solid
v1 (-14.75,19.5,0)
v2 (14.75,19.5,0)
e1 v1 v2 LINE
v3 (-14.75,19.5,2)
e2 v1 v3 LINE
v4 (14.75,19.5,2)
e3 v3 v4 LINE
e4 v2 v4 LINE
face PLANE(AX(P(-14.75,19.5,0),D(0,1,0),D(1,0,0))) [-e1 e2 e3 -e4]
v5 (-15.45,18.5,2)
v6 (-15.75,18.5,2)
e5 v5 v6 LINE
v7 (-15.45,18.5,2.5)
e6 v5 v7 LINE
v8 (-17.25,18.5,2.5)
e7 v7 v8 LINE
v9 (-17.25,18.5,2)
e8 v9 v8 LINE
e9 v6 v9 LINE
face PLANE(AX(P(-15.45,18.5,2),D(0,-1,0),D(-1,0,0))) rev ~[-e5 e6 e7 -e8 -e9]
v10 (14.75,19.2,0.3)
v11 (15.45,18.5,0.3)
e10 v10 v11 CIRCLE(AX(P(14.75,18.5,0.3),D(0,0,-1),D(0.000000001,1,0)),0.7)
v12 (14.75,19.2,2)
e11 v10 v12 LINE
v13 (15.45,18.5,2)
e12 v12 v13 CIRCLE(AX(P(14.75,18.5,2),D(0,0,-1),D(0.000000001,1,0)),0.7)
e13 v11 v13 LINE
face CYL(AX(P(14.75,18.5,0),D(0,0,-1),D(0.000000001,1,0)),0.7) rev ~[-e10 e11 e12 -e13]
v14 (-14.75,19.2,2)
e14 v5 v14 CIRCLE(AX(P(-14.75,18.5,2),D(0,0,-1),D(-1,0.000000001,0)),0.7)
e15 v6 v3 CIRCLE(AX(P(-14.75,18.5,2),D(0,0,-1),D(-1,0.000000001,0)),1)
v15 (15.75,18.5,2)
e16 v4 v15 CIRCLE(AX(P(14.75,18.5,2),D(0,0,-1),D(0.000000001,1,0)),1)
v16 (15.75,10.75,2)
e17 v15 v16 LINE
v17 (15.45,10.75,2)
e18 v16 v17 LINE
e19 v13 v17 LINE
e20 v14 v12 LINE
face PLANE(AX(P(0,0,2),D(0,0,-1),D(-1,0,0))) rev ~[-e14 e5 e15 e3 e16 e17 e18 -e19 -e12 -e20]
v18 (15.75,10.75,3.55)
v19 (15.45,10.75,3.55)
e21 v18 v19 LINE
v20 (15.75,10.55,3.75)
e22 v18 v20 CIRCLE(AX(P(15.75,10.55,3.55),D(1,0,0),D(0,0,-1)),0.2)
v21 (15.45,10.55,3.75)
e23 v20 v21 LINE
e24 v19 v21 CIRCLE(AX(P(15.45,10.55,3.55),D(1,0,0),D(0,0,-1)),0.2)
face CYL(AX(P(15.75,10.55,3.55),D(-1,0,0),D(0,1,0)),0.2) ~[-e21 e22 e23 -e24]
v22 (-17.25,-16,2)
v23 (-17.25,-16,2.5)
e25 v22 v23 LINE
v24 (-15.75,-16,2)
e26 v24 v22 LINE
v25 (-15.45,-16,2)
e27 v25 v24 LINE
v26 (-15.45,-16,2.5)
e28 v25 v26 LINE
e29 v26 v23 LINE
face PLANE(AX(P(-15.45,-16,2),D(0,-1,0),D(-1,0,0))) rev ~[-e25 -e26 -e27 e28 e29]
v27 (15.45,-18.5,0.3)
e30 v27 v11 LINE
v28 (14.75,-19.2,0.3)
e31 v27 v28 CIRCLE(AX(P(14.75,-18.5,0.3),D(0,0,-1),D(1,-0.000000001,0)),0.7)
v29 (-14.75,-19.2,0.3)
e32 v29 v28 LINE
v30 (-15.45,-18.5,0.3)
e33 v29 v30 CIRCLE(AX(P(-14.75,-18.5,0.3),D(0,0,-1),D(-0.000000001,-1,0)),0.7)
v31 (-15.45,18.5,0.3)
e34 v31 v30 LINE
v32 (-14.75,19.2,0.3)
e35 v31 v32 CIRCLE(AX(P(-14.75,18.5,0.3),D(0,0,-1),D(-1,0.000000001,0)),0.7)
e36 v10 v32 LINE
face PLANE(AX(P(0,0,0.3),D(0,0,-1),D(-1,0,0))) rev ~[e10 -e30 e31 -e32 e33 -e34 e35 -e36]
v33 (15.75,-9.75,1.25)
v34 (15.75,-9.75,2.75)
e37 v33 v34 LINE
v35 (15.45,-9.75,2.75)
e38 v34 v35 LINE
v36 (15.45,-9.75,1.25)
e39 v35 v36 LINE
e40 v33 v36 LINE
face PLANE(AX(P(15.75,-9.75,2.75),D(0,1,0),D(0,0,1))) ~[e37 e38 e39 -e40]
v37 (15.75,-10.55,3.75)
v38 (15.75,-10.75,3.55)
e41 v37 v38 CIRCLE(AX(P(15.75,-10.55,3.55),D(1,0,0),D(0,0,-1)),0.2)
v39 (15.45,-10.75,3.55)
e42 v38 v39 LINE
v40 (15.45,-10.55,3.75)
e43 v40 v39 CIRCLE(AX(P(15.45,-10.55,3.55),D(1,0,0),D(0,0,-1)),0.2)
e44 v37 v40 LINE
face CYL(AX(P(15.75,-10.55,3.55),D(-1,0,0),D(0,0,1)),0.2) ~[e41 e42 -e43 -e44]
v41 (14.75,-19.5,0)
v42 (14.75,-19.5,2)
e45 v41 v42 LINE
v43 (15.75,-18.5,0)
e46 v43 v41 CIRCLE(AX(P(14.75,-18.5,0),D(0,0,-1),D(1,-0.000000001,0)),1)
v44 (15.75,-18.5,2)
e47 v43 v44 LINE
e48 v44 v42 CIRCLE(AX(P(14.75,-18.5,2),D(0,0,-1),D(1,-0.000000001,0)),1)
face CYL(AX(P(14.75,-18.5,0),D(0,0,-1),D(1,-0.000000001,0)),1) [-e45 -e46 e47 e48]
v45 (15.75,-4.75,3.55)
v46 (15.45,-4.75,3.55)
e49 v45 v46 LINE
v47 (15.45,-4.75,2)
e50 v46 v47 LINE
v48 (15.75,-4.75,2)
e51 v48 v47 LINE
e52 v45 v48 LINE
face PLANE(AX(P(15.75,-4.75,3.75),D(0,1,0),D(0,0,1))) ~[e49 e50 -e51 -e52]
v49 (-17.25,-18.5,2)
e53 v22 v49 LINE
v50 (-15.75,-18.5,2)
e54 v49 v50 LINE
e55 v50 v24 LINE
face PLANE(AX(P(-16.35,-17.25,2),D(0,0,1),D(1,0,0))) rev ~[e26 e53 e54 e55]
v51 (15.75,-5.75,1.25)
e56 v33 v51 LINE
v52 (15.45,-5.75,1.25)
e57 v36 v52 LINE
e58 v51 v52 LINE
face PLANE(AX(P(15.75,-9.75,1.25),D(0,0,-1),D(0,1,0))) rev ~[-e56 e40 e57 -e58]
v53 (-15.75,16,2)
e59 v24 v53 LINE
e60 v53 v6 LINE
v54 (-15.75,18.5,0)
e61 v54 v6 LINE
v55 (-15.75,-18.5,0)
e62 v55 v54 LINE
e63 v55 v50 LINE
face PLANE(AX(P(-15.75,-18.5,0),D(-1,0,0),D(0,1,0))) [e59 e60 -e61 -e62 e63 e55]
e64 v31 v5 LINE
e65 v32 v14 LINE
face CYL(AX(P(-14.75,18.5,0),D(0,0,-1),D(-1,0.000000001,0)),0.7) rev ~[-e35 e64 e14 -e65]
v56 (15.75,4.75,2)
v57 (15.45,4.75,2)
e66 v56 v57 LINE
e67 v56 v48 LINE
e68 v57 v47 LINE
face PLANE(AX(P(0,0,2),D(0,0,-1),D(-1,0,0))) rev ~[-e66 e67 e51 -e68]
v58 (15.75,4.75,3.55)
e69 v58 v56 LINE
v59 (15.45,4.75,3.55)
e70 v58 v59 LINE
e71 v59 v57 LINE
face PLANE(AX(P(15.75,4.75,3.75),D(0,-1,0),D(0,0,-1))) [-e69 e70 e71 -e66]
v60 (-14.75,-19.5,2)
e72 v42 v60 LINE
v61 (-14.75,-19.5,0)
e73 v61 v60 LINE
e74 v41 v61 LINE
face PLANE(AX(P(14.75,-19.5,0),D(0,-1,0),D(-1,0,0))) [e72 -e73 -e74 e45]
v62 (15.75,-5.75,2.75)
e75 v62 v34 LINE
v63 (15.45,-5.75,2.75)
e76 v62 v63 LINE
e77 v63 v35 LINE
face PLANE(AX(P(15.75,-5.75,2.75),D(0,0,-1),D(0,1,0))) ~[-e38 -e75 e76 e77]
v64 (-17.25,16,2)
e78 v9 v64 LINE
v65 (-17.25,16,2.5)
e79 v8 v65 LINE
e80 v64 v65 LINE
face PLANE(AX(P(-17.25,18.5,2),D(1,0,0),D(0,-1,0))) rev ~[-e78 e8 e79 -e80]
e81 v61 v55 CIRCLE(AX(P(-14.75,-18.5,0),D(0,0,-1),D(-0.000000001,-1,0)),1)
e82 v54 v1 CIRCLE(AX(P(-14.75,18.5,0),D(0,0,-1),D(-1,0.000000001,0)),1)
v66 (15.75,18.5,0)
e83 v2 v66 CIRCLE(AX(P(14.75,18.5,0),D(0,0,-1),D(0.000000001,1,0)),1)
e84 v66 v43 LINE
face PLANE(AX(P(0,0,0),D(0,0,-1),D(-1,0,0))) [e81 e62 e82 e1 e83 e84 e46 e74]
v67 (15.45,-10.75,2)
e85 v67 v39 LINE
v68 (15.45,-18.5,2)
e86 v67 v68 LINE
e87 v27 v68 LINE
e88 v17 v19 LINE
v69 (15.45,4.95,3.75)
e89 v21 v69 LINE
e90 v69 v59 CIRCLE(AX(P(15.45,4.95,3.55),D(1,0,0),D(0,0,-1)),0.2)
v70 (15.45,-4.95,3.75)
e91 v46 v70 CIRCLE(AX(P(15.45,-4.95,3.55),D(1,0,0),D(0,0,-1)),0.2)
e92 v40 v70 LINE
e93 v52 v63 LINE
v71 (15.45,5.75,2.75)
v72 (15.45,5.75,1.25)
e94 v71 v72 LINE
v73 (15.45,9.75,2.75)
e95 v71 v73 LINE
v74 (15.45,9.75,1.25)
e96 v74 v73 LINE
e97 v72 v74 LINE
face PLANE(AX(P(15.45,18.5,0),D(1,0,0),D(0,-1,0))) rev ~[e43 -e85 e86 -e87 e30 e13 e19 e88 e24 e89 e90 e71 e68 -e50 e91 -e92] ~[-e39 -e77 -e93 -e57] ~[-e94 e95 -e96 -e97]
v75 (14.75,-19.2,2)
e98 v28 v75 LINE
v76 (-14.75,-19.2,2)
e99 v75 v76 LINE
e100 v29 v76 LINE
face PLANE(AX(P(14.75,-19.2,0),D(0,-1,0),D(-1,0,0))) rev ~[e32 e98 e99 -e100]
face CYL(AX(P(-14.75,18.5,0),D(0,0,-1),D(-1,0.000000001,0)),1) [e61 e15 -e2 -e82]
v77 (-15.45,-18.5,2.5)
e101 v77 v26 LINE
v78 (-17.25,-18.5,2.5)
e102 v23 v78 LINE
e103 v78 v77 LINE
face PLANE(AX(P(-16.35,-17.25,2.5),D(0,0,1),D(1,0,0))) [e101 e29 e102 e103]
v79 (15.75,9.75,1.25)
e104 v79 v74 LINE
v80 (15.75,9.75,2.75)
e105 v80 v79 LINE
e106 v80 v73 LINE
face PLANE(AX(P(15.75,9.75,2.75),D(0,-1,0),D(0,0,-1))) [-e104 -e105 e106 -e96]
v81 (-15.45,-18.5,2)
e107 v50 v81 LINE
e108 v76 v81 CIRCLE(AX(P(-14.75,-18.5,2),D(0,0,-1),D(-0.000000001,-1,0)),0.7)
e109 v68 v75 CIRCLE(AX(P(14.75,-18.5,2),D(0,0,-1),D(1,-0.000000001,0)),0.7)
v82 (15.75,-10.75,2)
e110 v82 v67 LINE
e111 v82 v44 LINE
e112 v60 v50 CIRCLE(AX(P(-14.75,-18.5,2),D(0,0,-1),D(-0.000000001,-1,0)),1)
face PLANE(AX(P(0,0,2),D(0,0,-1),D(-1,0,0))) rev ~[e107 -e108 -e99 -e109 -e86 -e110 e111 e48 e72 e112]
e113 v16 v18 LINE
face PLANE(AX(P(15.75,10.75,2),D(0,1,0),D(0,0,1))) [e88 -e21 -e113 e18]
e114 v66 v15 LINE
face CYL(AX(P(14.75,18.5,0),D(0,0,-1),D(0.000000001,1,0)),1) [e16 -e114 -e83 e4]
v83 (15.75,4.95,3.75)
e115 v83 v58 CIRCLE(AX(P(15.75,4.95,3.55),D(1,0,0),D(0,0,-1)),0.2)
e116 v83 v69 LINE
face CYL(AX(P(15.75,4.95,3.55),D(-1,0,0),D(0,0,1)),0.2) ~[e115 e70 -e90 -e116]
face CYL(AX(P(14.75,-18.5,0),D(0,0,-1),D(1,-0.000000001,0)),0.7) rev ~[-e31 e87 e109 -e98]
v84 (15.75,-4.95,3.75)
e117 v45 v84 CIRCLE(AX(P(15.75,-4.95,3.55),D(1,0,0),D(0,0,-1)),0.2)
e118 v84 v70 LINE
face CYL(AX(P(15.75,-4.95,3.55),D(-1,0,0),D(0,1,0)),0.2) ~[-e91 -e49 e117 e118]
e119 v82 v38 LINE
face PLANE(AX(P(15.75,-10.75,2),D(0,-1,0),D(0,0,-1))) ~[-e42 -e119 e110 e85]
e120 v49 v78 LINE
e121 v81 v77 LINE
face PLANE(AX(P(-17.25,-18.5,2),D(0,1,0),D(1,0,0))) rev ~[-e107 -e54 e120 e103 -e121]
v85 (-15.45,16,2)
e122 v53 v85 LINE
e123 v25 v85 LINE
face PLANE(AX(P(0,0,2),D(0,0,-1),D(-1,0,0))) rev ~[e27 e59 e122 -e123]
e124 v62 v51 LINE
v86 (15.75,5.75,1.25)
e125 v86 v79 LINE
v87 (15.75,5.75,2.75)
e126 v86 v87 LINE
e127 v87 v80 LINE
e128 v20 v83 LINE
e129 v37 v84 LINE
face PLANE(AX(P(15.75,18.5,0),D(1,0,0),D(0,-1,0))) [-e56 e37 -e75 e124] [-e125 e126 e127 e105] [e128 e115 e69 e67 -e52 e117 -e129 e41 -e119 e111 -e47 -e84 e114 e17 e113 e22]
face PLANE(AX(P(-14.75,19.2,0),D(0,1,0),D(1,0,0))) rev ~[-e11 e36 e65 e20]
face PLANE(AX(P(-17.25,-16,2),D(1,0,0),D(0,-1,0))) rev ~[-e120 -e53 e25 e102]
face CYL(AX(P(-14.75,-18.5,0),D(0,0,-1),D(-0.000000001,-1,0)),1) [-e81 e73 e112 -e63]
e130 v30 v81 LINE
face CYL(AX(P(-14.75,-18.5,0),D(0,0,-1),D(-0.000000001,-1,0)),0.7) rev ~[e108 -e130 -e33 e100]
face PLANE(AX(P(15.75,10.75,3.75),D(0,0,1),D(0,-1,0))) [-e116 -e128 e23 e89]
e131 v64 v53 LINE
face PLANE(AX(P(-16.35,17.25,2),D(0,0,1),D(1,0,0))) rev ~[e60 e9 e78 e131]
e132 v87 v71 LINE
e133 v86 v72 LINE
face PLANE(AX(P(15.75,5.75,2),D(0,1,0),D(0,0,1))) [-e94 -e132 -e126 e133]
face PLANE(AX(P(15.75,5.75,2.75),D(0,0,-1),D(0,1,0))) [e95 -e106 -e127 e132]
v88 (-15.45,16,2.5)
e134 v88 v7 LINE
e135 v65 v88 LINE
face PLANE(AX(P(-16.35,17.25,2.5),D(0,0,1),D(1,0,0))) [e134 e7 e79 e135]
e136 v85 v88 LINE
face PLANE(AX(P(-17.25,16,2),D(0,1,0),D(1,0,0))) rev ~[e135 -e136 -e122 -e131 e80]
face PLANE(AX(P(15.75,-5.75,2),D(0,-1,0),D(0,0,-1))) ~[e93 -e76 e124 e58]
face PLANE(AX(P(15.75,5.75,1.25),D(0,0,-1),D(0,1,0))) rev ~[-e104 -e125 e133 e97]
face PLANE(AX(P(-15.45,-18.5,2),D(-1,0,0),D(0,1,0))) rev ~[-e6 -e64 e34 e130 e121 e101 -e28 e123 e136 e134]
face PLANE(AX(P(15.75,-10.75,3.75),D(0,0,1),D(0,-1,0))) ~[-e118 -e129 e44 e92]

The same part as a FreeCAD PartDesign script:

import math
import FreeCAD as App
import Part
import Sketcher


def edges_at(feature, points):
    """Names of the edges that pass closest to the given points."""
    edges = feature.Shape.Edges
    near = lambda p: min(range(len(edges)), key=lambda i: edges[i].distToShape(Part.Vertex(*p))[0])
    return sorted({f"Edge{near(p) + 1}" for p in points})


def faces_at(feature, points):
    """Names of the faces that lie closest to the given points."""
    faces = feature.Shape.Faces
    near = lambda p: min(range(len(faces)), key=lambda i: faces[i].distToShape(Part.Vertex(*p))[0])
    return sorted({f"Face{near(p) + 1}" for p in points})

doc = App.newDocument("Part")
params = doc.addObject("Spreadsheet::Sheet", "Params")
for row, (alias, value) in enumerate([
    ("sketch1_radius", "1 mm"),
    ("sketch1_height", "37 mm"),
    ("sketch1_width", "29.5 mm"),
    ("pad1_length", "2 mm"),
    ("thickness_wall", "0.3 mm"),
    ("sketch2_width", "6 mm"),
    ("sketch2_width2", "1 mm"),
    ("sketch2_height", "1.75 mm"),
    ("pad2_length", "0.3 mm"),
    ("sketch3_width", "4 mm"),
    ("sketch3_height", "0.75 mm"),
    ("pocket1_length", "0.3 mm"),
    ("fillet_radius", "0.2 mm"),
    ("sketch4_width", "1.8 mm"),
    ("sketch4_height", "2.5 mm"),
    ("pad3_length", "0.5 mm"),
], start=1):
    params.set(f"A{row}", alias)
    params.set(f"B{row}", "=" + value)
    params.setAlias(f"B{row}", alias)

body = doc.addObject("PartDesign::Body", "Body")

sketch1 = body.newObject("Sketcher::SketchObject", "Sketch")
sketch1.AttachmentSupport = (doc.getObject("XY_Plane"), [""])
sketch1.MapMode = "FlatFace"
sketch1.addGeometry([
    Part.LineSegment(App.Vector(14.8, 19.5, 0), App.Vector(-14.8, 19.5, 0)),
    Part.ArcOfCircle(Part.Circle(App.Vector(-14.7, 18.5, 0), App.Vector(0, 0, 1), 1), math.radians(90), math.radians(180)),
    Part.LineSegment(App.Vector(-15.8, 18.5, 0), App.Vector(-15.8, -18.5, 0)),
    Part.ArcOfCircle(Part.Circle(App.Vector(-14.7, -18.5, 0), App.Vector(0, 0, 1), 1), math.radians(-180), math.radians(-90)),
    Part.LineSegment(App.Vector(-14.8, -19.5, 0), App.Vector(14.8, -19.5, 0)),
    Part.ArcOfCircle(Part.Circle(App.Vector(14.7, -18.5, 0), App.Vector(0, 0, 1), 1), math.radians(-90), math.radians(0)),
    Part.LineSegment(App.Vector(15.8, -18.5, 0), App.Vector(15.8, 18.5, 0)),
    Part.ArcOfCircle(Part.Circle(App.Vector(14.7, 18.5, 0), App.Vector(0, 0, 1), 1), math.radians(0), math.radians(90)),
], False)
sketch1.addConstraint([
    Sketcher.Constraint("Tangent", 0, 2, 1, 1),
    Sketcher.Constraint("Tangent", 1, 2, 2, 1),
    Sketcher.Constraint("Tangent", 2, 2, 3, 1),
    Sketcher.Constraint("Tangent", 3, 2, 4, 1),
    Sketcher.Constraint("Tangent", 4, 2, 5, 1),
    Sketcher.Constraint("Tangent", 5, 2, 6, 1),
    Sketcher.Constraint("Tangent", 6, 2, 7, 1),
    Sketcher.Constraint("Tangent", 7, 2, 0, 1),
    Sketcher.Constraint("Horizontal", 0),
    Sketcher.Constraint("Vertical", 2),
    Sketcher.Constraint("Horizontal", 4),
    Sketcher.Constraint("Vertical", 6),
    Sketcher.Constraint("Equal", 1, 3),
    Sketcher.Constraint("Equal", 3, 5),
    Sketcher.Constraint("Equal", 5, 7),
    Sketcher.Constraint("Symmetric", 1, 3, 5, 3, -1, 1),
    Sketcher.Constraint("Radius", 1, 1.0),
    Sketcher.Constraint("DistanceY", 2, 2, 2, 1, 37.0),
    Sketcher.Constraint("DistanceX", 0, 2, 0, 1, 29.5),
])
sketch1.setExpression("Constraints[16]", "Params.sketch1_radius")
sketch1.setExpression("Constraints[17]", "Params.sketch1_height")
sketch1.setExpression("Constraints[18]", "Params.sketch1_width")
pad1 = body.newObject("PartDesign::Pad", "Pad")
pad1.Profile = sketch1
pad1.setExpression("Length", "Params.pad1_length")
doc.recompute()

thickness = body.newObject("PartDesign::Thickness", "Thickness")
thickness.Base = (pad1, faces_at(pad1, [(0, 0, 2)]))
thickness.setExpression("Value", "Params.thickness_wall")
thickness.Reversed = True
thickness.Join = "Intersection"

sketch2 = body.newObject("Sketcher::SketchObject", "Sketch001")
sketch2.AttachmentSupport = (doc.getObject("YZ_Plane"), [""])
sketch2.MapMode = "FlatFace"
sketch2.AttachmentOffset = App.Placement(App.Vector(0, 0, 15.75), App.Rotation())
sketch2.addGeometry([
    Part.LineSegment(App.Vector(10.8, 2, 0), App.Vector(10.8, 3.8, 0)),
    Part.LineSegment(App.Vector(10.8, 3.8, 0), App.Vector(4.8, 3.8, 0)),
    Part.LineSegment(App.Vector(4.8, 3.8, 0), App.Vector(4.8, 2, 0)),
    Part.LineSegment(App.Vector(4.8, 2, 0), App.Vector(5.8, 2, 0)),
    Part.LineSegment(App.Vector(5.8, 2, 0), App.Vector(5.8, 2.8, 0)),
    Part.LineSegment(App.Vector(5.8, 2.8, 0), App.Vector(9.8, 2.8, 0)),
    Part.LineSegment(App.Vector(9.8, 2.8, 0), App.Vector(9.8, 2, 0)),
    Part.LineSegment(App.Vector(9.8, 2, 0), App.Vector(10.8, 2, 0)),
], False)
sketch2.addConstraint([
    Sketcher.Constraint("Coincident", 0, 2, 1, 1),
    Sketcher.Constraint("Coincident", 1, 2, 2, 1),
    Sketcher.Constraint("Coincident", 2, 2, 3, 1),
    Sketcher.Constraint("Coincident", 3, 2, 4, 1),
    Sketcher.Constraint("Coincident", 4, 2, 5, 1),
    Sketcher.Constraint("Coincident", 5, 2, 6, 1),
    Sketcher.Constraint("Coincident", 6, 2, 7, 1),
    Sketcher.Constraint("Coincident", 7, 2, 0, 1),
    Sketcher.Constraint("Vertical", 0),
    Sketcher.Constraint("Horizontal", 1),
    Sketcher.Constraint("Vertical", 2),
    Sketcher.Constraint("Horizontal", 3),
    Sketcher.Constraint("Vertical", 4),
    Sketcher.Constraint("Horizontal", 5),
    Sketcher.Constraint("Vertical", 6),
    Sketcher.Constraint("Horizontal", 7),
    Sketcher.Constraint("Horizontal", 3, 2, 6, 2),
    Sketcher.Constraint("Equal", 3, 7),
    Sketcher.Constraint("DistanceX", 1, 2, 1, 1, 6.0),
    Sketcher.Constraint("DistanceX", 3, 1, 3, 2, 1.0),
    Sketcher.Constraint("DistanceY", -1, 1, 2, 2, 2.0),
    Sketcher.Constraint("DistanceY", 4, 2, 1, 2, 1.0),
    Sketcher.Constraint("DistanceY", 0, 1, 0, 2, 1.75),
    Sketcher.Constraint("DistanceX", -1, 1, 0, 2, 10.75),
])
sketch2.setExpression("Constraints[18]", "Params.sketch2_width")
sketch2.setExpression("Constraints[19]", "Params.sketch2_width2")
sketch2.setExpression("Constraints[22]", "Params.sketch2_height")
pad2 = body.newObject("PartDesign::Pad", "Pad001")
pad2.Profile = sketch2
pad2.setExpression("Length", "Params.pad2_length")
pad2.Reversed = True
doc.recompute()

mirrored = body.newObject("PartDesign::Mirrored", "Mirrored")
mirrored.Originals = [pad2]
mirrored.MirrorPlane = (doc.getObject("XZ_Plane"), [""])
body.Tip = mirrored

sketch3 = body.newObject("Sketcher::SketchObject", "Sketch002")
sketch3.AttachmentSupport = (doc.getObject("YZ_Plane"), [""])
sketch3.MapMode = "FlatFace"
sketch3.AttachmentOffset = App.Placement(App.Vector(0, 0, 15.75), App.Rotation())
sketch3.addGeometry([
    Part.LineSegment(App.Vector(9.8, 2, 0), App.Vector(5.8, 2, 0)),
    Part.LineSegment(App.Vector(5.8, 2, 0), App.Vector(5.8, 1.2, 0)),
    Part.LineSegment(App.Vector(5.8, 1.2, 0), App.Vector(9.8, 1.2, 0)),
    Part.LineSegment(App.Vector(9.8, 1.2, 0), App.Vector(9.8, 2, 0)),
    Part.LineSegment(App.Vector(-5.8, 2, 0), App.Vector(-9.8, 2, 0)),
    Part.LineSegment(App.Vector(-9.8, 2, 0), App.Vector(-9.8, 1.2, 0)),
    Part.LineSegment(App.Vector(-9.8, 1.2, 0), App.Vector(-5.8, 1.2, 0)),
    Part.LineSegment(App.Vector(-5.8, 1.2, 0), App.Vector(-5.8, 2, 0)),
], False)
sketch3.addConstraint([
    Sketcher.Constraint("Coincident", 0, 2, 1, 1),
    Sketcher.Constraint("Coincident", 1, 2, 2, 1),
    Sketcher.Constraint("Coincident", 2, 2, 3, 1),
    Sketcher.Constraint("Coincident", 3, 2, 0, 1),
    Sketcher.Constraint("Coincident", 4, 2, 5, 1),
    Sketcher.Constraint("Coincident", 5, 2, 6, 1),
    Sketcher.Constraint("Coincident", 6, 2, 7, 1),
    Sketcher.Constraint("Coincident", 7, 2, 4, 1),
    Sketcher.Constraint("Horizontal", 0),
    Sketcher.Constraint("Vertical", 1),
    Sketcher.Constraint("Horizontal", 2),
    Sketcher.Constraint("Vertical", 3),
    Sketcher.Constraint("Horizontal", 4),
    Sketcher.Constraint("Vertical", 5),
    Sketcher.Constraint("Horizontal", 6),
    Sketcher.Constraint("Vertical", 7),
    Sketcher.Constraint("Symmetric", 3, 2, 4, 2, -2),
    Sketcher.Constraint("Symmetric", 1, 2, 6, 2, -2),
    Sketcher.Constraint("DistanceX", 0, 2, 0, 1, 4.0),
    Sketcher.Constraint("DistanceY", -1, 1, 0, 2, 2.0),
    Sketcher.Constraint("DistanceY", 1, 2, 1, 1, 0.75),
    Sketcher.Constraint("DistanceX", 4, 2, 0, 2, 15.5),
])
sketch3.setExpression("Constraints[18]", "Params.sketch3_width")
sketch3.setExpression("Constraints[20]", "Params.sketch3_height")
pocket1 = body.newObject("PartDesign::Pocket", "Pocket")
pocket1.Profile = sketch3
pocket1.setExpression("Length", "Params.pocket1_length")
doc.recompute()

fillet = body.newObject("PartDesign::Fillet", "Fillet")
fillet.Base = (pocket1, edges_at(pocket1, [
    (15.6, -10.75, 3.75),
    (15.6, 4.75, 3.75),
    (15.6, 10.75, 3.75),
    (15.6, -4.75, 3.75),
]))
fillet.setExpression("Radius", "Params.fillet_radius")

sketch4 = body.newObject("Sketcher::SketchObject", "Sketch003")
sketch4.AttachmentSupport = (doc.getObject("XY_Plane"), [""])
sketch4.MapMode = "FlatFace"
sketch4.AttachmentOffset = App.Placement(App.Vector(0, 0, 2), App.Rotation())
sketch4.addGeometry([
    Part.LineSegment(App.Vector(-17.2, -18.5, 0), App.Vector(-15.4, -18.5, 0)),
    Part.LineSegment(App.Vector(-15.4, -18.5, 0), App.Vector(-15.4, -16, 0)),
    Part.LineSegment(App.Vector(-15.4, -16, 0), App.Vector(-17.2, -16, 0)),
    Part.LineSegment(App.Vector(-17.2, -16, 0), App.Vector(-17.2, -18.5, 0)),
    Part.LineSegment(App.Vector(-17.2, 16, 0), App.Vector(-15.4, 16, 0)),
    Part.LineSegment(App.Vector(-15.4, 16, 0), App.Vector(-15.4, 18.5, 0)),
    Part.LineSegment(App.Vector(-15.4, 18.5, 0), App.Vector(-17.2, 18.5, 0)),
    Part.LineSegment(App.Vector(-17.2, 18.5, 0), App.Vector(-17.2, 16, 0)),
], False)
sketch4.addConstraint([
    Sketcher.Constraint("Coincident", 0, 2, 1, 1),
    Sketcher.Constraint("Coincident", 1, 2, 2, 1),
    Sketcher.Constraint("Coincident", 2, 2, 3, 1),
    Sketcher.Constraint("Coincident", 3, 2, 0, 1),
    Sketcher.Constraint("Coincident", 4, 2, 5, 1),
    Sketcher.Constraint("Coincident", 5, 2, 6, 1),
    Sketcher.Constraint("Coincident", 6, 2, 7, 1),
    Sketcher.Constraint("Coincident", 7, 2, 4, 1),
    Sketcher.Constraint("Horizontal", 0),
    Sketcher.Constraint("Vertical", 1),
    Sketcher.Constraint("Horizontal", 2),
    Sketcher.Constraint("Vertical", 3),
    Sketcher.Constraint("Horizontal", 4),
    Sketcher.Constraint("Vertical", 5),
    Sketcher.Constraint("Horizontal", 6),
    Sketcher.Constraint("Vertical", 7),
    Sketcher.Constraint("Symmetric", 1, 2, 4, 2, -1),
    Sketcher.Constraint("Symmetric", 3, 2, 6, 2, -1),
    Sketcher.Constraint("DistanceX", 0, 1, 0, 2, 1.8),
    Sketcher.Constraint("DistanceY", 1, 1, 1, 2, 2.5),
    Sketcher.Constraint("DistanceY", 1, 2, -1, 1, 16.0),
    Sketcher.Constraint("DistanceX", 0, 2, -1, 1, 15.45),
])
sketch4.setExpression("Constraints[18]", "Params.sketch4_width")
sketch4.setExpression("Constraints[19]", "Params.sketch4_height")
pad3 = body.newObject("PartDesign::Pad", "Pad002")
pad3.Profile = sketch4
pad3.setExpression("Length", "Params.pad3_length")

doc.recompute()
